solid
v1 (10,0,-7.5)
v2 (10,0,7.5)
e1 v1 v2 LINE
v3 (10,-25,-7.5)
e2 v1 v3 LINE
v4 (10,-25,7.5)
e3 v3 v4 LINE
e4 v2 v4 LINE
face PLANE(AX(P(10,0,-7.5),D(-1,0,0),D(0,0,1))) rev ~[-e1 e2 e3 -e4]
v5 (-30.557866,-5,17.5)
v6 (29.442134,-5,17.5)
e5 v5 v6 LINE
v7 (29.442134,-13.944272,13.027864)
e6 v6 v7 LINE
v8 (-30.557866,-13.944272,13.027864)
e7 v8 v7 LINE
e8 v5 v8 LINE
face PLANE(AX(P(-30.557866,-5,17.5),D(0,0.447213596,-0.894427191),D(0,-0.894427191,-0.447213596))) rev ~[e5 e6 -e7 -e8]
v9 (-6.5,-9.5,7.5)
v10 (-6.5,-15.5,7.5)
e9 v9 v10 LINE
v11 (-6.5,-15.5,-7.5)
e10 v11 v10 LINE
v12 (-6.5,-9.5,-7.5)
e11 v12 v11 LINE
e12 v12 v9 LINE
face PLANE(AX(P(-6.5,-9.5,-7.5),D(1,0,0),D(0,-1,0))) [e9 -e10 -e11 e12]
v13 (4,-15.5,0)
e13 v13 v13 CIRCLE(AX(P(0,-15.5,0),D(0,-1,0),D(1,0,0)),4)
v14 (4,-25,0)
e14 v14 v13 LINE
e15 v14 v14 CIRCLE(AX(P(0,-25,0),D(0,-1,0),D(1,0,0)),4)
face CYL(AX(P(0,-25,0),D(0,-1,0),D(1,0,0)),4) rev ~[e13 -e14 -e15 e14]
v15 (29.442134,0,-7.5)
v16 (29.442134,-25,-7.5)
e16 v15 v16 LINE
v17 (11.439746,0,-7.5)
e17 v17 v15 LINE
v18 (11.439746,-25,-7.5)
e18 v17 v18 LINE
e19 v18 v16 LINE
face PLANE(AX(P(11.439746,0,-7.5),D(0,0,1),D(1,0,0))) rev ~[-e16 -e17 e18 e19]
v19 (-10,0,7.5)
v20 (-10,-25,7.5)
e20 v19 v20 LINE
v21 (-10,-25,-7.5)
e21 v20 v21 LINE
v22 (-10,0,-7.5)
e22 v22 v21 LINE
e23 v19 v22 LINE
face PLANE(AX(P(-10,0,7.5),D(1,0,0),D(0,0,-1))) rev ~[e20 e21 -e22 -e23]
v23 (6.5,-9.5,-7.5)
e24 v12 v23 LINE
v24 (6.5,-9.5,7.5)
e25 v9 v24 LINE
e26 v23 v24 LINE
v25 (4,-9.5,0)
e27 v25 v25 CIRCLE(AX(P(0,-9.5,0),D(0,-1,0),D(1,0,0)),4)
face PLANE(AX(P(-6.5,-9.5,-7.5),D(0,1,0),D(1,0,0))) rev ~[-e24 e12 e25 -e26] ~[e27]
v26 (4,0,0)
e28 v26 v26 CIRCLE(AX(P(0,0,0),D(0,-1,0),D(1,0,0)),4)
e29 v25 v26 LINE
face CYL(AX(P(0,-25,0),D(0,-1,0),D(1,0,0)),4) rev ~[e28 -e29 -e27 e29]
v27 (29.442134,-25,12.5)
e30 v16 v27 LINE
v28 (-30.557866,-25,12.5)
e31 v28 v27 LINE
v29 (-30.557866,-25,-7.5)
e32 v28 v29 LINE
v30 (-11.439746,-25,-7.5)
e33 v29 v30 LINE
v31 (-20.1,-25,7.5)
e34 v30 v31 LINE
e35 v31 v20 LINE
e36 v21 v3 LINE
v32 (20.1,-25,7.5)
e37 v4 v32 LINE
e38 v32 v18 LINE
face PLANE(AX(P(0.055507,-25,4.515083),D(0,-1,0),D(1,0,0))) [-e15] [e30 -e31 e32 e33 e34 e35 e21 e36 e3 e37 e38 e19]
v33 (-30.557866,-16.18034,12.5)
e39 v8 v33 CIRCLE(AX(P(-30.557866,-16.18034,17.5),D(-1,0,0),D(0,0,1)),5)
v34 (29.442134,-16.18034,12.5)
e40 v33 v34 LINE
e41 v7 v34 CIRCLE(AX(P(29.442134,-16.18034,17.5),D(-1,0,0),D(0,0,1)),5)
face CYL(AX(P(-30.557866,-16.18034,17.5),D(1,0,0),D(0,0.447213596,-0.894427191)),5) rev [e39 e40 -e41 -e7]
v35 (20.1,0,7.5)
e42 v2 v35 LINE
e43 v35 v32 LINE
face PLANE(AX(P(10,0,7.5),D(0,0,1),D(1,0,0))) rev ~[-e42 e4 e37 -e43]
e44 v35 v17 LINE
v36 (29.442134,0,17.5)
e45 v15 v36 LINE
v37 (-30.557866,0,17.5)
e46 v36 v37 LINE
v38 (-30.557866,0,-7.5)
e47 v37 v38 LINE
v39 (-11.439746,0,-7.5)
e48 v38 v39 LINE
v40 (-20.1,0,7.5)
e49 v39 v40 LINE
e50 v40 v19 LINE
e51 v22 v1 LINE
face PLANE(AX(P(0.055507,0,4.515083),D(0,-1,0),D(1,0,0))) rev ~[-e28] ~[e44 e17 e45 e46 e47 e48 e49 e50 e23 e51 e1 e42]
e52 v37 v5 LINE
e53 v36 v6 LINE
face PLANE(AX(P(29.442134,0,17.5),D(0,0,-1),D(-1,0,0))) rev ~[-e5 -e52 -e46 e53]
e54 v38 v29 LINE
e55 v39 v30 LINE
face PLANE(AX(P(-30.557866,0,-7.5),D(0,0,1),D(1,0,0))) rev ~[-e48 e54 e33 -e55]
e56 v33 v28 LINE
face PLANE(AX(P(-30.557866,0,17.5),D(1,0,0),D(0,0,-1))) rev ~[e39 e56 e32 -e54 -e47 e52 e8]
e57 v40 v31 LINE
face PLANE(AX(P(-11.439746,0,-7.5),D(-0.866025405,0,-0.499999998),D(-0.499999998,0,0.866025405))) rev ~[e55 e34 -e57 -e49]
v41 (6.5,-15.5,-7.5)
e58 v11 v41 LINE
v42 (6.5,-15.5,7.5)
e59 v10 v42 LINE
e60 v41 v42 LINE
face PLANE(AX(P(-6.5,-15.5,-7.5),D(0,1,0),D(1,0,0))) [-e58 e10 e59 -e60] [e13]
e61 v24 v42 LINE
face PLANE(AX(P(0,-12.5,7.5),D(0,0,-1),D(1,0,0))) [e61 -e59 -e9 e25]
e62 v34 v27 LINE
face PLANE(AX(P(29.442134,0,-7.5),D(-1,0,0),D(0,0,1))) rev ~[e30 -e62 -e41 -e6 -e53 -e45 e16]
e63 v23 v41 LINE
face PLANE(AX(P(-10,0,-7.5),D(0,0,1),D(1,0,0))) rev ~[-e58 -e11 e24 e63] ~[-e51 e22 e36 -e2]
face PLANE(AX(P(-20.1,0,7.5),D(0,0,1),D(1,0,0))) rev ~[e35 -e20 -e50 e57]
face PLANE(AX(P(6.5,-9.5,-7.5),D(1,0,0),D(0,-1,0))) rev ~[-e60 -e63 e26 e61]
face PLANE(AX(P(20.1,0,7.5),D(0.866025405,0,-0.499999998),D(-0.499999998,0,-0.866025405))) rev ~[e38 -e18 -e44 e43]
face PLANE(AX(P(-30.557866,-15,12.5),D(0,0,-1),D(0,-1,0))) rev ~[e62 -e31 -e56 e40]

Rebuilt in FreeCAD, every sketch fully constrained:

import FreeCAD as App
import Part
import Sketcher
from FreeCAD import Vector
Q = App.Units.Quantity


def edges_at(feature, points):
    """Names of the edges that pass closest to the given points."""
    edges = feature.Shape.Edges
    near = lambda p: min(range(len(edges)), key=lambda i: edges[i].distToShape(Part.Vertex(*p))[0])
    return sorted({f"Edge{near(p) + 1}" for p in points})


def add_polygon(sketch, points):
    """Adds a closed chain of lines whose ends are joined by coincident constraints."""
    first, n = sketch.GeometryCount, len(points)
    for a, b in zip(points, points[1:] + points[:1]):
        sketch.addGeometry(Part.LineSegment(App.Vector(*a, 0), App.Vector(*b, 0)), False)
    for i in range(n):
        sketch.addConstraint(Sketcher.Constraint("Coincident", first + i, 2, first + (i + 1) % n, 1))

doc = App.newDocument("Part")
body = doc.addObject("PartDesign::Body", "Body")

# Sketch on XZ plane
sketch1 = doc.addObject("Sketcher::SketchObject", "Sketch")
body.addObject(sketch1)
sketch1.AttachmentSupport = (doc.XZ_Plane, [""])
sketch1.MapMode = "FlatFace"
add_polygon(sketch1, [(29.442134, 17.5), (-30.557866, 17.5), (-30.557866, -7.5), (-11.439746, -7.5), (-20.1, 7.5), (-10, 7.5), (-10, -7.5), (10, -7.5), (10, 7.5), (20.1, 7.5), (11.439746, -7.5), (29.442134, -7.5)])  # lines 0-11
sketch1.addConstraint(Sketcher.Constraint("Horizontal", 0))
sketch1.addConstraint(Sketcher.Constraint("Vertical", 1))
sketch1.addConstraint(Sketcher.Constraint("Horizontal", 2))
sketch1.addConstraint(Sketcher.Constraint("Horizontal", 4))
sketch1.addConstraint(Sketcher.Constraint("Vertical", 5))
sketch1.addConstraint(Sketcher.Constraint("Horizontal", 6))
sketch1.addConstraint(Sketcher.Constraint("Vertical", 7))
sketch1.addConstraint(Sketcher.Constraint("Horizontal", 8))
sketch1.addConstraint(Sketcher.Constraint("Horizontal", 10))
sketch1.addConstraint(Sketcher.Constraint("Vertical", 11))
sketch1.addConstraint(Sketcher.Constraint("Symmetric", 4, 2, 6, 2, -1, 1))
sketch1.addConstraint(Sketcher.Constraint("Symmetric", 3, 2, 8, 2, -2))
sketch1.addConstraint(Sketcher.Constraint("Symmetric", 2, 2, 9, 2, -2))
sketch1.addConstraint(Sketcher.Constraint("Horizontal", 2, 2, 5, 2))
sketch1.addConstraint(Sketcher.Constraint("DistanceX", 0, 2, 0, 1, Q("60 mm")))
sketch1.addConstraint(Sketcher.Constraint("DistanceX", 6, 1, 6, 2, Q("20 mm")))
sketch1.addConstraint(Sketcher.Constraint("DistanceY", 1, 2, 1, 1, Q("25 mm")))
sketch1.addConstraint(Sketcher.Constraint("DistanceY", 5, 2, 5, 1, Q("15 mm")))
sketch1.addConstraint(Sketcher.Constraint("Angle", 3, Q("120 deg")))
sketch1.addConstraint(Sketcher.Constraint("DistanceX", 4, 1, 4, 2, Q("10.1 mm")))
sketch1.addConstraint(Sketcher.Constraint("DistanceX", 2, 1, 2, 2, Q("19.11812 mm")))
pad1 = doc.addObject("PartDesign::Pad", "Pad")
body.addObject(pad1)
pad1.Profile = sketch1
pad1.Length = 25

# Sketch on YZ plane
sketch2 = doc.addObject("Sketcher::SketchObject", "Sketch001")
body.addObject(sketch2)
sketch2.AttachmentSupport = (doc.YZ_Plane, [""])
sketch2.MapMode = "FlatFace"
sketch2.AttachmentOffset = App.Placement(Vector(0, 0, -30.557866), App.Rotation())
add_polygon(sketch2, [(-15, 12.5), (-25, 12.5), (-25, 17.5), (-5, 17.5)])  # lines 0-3
sketch2.addConstraint(Sketcher.Constraint("Horizontal", 0))
sketch2.addConstraint(Sketcher.Constraint("Vertical", 1))
sketch2.addConstraint(Sketcher.Constraint("Horizontal", 2))
sketch2.addConstraint(Sketcher.Constraint("DistanceX", 0, 2, 0, 1, Q("10 mm")))
sketch2.addConstraint(Sketcher.Constraint("DistanceX", 2, 1, 2, 2, Q("20 mm")))
sketch2.addConstraint(Sketcher.Constraint("DistanceY", 1, 1, 1, 2, Q("5 mm")))
sketch2.addConstraint(Sketcher.Constraint("DistanceX", 0, 2, -1, 1, Q("25 mm")))
sketch2.addConstraint(Sketcher.Constraint("DistanceY", -1, 1, 0, 2, Q("12.5 mm")))
pocket1 = doc.addObject("PartDesign::Pocket", "Pocket")
body.addObject(pocket1)
pocket1.Profile = sketch2
pocket1.Type = "ThroughAll"
pocket1.Reversed = True
doc.recompute()

fillet = doc.addObject("PartDesign::Fillet", "Fillet")
body.addObject(fillet)
fillet.Base = (pocket1, edges_at(pocket1, [(-0.558, -15, 12.5)]))
fillet.Radius = 5

# Sketch on XY plane
sketch3 = doc.addObject("Sketcher::SketchObject", "Sketch002")
body.addObject(sketch3)
sketch3.AttachmentSupport = (doc.XY_Plane, [""])
sketch3.MapMode = "FlatFace"
sketch3.AttachmentOffset = App.Placement(Vector(0, 0, -7.5), App.Rotation())
add_polygon(sketch3, [(-6.5, -15.5), (-6.5, -9.5), (6.5, -9.5), (6.5, -15.5)])  # lines 0-3
sketch3.addConstraint(Sketcher.Constraint("Vertical", 0))
sketch3.addConstraint(Sketcher.Constraint("Horizontal", 1))
sketch3.addConstraint(Sketcher.Constraint("Vertical", 2))
sketch3.addConstraint(Sketcher.Constraint("Horizontal", 3))
sketch3.addConstraint(Sketcher.Constraint("DistanceX", 1, 1, 1, 2, Q("13 mm")))
sketch3.addConstraint(Sketcher.Constraint("DistanceY", 0, 1, 0, 2, Q("6 mm")))
sketch3.addConstraint(Sketcher.Constraint("DistanceX", 0, 2, -1, 1, Q("6.5 mm")))
sketch3.addConstraint(Sketcher.Constraint("DistanceY", 0, 2, -1, 1, Q("9.5 mm")))
pocket2 = doc.addObject("PartDesign::Pocket", "Pocket001")
body.addObject(pocket2)
pocket2.Profile = sketch3
pocket2.Length = 15
pocket2.Reversed = True

# Sketch on XZ plane
sketch4 = doc.addObject("Sketcher::SketchObject", "Sketch003")
body.addObject(sketch4)
sketch4.AttachmentSupport = (doc.XZ_Plane, [""])
sketch4.MapMode = "FlatFace"
sketch4.AttachmentOffset = App.Placement(Vector(0, 0, 25), App.Rotation())
sketch4.addGeometry(Part.Circle(Vector(0, 0, 0), Vector(0, 0, 1), 4), False)
sketch4.addConstraint(Sketcher.Constraint("Coincident", 0, 3, -1, 1))
sketch4.addConstraint(Sketcher.Constraint("Diameter", 0, Q("8 mm")))
pocket3 = doc.addObject("PartDesign::Pocket", "Pocket002")
body.addObject(pocket3)
pocket3.Profile = sketch4
pocket3.Type = "ThroughAll"

doc.recompute()
